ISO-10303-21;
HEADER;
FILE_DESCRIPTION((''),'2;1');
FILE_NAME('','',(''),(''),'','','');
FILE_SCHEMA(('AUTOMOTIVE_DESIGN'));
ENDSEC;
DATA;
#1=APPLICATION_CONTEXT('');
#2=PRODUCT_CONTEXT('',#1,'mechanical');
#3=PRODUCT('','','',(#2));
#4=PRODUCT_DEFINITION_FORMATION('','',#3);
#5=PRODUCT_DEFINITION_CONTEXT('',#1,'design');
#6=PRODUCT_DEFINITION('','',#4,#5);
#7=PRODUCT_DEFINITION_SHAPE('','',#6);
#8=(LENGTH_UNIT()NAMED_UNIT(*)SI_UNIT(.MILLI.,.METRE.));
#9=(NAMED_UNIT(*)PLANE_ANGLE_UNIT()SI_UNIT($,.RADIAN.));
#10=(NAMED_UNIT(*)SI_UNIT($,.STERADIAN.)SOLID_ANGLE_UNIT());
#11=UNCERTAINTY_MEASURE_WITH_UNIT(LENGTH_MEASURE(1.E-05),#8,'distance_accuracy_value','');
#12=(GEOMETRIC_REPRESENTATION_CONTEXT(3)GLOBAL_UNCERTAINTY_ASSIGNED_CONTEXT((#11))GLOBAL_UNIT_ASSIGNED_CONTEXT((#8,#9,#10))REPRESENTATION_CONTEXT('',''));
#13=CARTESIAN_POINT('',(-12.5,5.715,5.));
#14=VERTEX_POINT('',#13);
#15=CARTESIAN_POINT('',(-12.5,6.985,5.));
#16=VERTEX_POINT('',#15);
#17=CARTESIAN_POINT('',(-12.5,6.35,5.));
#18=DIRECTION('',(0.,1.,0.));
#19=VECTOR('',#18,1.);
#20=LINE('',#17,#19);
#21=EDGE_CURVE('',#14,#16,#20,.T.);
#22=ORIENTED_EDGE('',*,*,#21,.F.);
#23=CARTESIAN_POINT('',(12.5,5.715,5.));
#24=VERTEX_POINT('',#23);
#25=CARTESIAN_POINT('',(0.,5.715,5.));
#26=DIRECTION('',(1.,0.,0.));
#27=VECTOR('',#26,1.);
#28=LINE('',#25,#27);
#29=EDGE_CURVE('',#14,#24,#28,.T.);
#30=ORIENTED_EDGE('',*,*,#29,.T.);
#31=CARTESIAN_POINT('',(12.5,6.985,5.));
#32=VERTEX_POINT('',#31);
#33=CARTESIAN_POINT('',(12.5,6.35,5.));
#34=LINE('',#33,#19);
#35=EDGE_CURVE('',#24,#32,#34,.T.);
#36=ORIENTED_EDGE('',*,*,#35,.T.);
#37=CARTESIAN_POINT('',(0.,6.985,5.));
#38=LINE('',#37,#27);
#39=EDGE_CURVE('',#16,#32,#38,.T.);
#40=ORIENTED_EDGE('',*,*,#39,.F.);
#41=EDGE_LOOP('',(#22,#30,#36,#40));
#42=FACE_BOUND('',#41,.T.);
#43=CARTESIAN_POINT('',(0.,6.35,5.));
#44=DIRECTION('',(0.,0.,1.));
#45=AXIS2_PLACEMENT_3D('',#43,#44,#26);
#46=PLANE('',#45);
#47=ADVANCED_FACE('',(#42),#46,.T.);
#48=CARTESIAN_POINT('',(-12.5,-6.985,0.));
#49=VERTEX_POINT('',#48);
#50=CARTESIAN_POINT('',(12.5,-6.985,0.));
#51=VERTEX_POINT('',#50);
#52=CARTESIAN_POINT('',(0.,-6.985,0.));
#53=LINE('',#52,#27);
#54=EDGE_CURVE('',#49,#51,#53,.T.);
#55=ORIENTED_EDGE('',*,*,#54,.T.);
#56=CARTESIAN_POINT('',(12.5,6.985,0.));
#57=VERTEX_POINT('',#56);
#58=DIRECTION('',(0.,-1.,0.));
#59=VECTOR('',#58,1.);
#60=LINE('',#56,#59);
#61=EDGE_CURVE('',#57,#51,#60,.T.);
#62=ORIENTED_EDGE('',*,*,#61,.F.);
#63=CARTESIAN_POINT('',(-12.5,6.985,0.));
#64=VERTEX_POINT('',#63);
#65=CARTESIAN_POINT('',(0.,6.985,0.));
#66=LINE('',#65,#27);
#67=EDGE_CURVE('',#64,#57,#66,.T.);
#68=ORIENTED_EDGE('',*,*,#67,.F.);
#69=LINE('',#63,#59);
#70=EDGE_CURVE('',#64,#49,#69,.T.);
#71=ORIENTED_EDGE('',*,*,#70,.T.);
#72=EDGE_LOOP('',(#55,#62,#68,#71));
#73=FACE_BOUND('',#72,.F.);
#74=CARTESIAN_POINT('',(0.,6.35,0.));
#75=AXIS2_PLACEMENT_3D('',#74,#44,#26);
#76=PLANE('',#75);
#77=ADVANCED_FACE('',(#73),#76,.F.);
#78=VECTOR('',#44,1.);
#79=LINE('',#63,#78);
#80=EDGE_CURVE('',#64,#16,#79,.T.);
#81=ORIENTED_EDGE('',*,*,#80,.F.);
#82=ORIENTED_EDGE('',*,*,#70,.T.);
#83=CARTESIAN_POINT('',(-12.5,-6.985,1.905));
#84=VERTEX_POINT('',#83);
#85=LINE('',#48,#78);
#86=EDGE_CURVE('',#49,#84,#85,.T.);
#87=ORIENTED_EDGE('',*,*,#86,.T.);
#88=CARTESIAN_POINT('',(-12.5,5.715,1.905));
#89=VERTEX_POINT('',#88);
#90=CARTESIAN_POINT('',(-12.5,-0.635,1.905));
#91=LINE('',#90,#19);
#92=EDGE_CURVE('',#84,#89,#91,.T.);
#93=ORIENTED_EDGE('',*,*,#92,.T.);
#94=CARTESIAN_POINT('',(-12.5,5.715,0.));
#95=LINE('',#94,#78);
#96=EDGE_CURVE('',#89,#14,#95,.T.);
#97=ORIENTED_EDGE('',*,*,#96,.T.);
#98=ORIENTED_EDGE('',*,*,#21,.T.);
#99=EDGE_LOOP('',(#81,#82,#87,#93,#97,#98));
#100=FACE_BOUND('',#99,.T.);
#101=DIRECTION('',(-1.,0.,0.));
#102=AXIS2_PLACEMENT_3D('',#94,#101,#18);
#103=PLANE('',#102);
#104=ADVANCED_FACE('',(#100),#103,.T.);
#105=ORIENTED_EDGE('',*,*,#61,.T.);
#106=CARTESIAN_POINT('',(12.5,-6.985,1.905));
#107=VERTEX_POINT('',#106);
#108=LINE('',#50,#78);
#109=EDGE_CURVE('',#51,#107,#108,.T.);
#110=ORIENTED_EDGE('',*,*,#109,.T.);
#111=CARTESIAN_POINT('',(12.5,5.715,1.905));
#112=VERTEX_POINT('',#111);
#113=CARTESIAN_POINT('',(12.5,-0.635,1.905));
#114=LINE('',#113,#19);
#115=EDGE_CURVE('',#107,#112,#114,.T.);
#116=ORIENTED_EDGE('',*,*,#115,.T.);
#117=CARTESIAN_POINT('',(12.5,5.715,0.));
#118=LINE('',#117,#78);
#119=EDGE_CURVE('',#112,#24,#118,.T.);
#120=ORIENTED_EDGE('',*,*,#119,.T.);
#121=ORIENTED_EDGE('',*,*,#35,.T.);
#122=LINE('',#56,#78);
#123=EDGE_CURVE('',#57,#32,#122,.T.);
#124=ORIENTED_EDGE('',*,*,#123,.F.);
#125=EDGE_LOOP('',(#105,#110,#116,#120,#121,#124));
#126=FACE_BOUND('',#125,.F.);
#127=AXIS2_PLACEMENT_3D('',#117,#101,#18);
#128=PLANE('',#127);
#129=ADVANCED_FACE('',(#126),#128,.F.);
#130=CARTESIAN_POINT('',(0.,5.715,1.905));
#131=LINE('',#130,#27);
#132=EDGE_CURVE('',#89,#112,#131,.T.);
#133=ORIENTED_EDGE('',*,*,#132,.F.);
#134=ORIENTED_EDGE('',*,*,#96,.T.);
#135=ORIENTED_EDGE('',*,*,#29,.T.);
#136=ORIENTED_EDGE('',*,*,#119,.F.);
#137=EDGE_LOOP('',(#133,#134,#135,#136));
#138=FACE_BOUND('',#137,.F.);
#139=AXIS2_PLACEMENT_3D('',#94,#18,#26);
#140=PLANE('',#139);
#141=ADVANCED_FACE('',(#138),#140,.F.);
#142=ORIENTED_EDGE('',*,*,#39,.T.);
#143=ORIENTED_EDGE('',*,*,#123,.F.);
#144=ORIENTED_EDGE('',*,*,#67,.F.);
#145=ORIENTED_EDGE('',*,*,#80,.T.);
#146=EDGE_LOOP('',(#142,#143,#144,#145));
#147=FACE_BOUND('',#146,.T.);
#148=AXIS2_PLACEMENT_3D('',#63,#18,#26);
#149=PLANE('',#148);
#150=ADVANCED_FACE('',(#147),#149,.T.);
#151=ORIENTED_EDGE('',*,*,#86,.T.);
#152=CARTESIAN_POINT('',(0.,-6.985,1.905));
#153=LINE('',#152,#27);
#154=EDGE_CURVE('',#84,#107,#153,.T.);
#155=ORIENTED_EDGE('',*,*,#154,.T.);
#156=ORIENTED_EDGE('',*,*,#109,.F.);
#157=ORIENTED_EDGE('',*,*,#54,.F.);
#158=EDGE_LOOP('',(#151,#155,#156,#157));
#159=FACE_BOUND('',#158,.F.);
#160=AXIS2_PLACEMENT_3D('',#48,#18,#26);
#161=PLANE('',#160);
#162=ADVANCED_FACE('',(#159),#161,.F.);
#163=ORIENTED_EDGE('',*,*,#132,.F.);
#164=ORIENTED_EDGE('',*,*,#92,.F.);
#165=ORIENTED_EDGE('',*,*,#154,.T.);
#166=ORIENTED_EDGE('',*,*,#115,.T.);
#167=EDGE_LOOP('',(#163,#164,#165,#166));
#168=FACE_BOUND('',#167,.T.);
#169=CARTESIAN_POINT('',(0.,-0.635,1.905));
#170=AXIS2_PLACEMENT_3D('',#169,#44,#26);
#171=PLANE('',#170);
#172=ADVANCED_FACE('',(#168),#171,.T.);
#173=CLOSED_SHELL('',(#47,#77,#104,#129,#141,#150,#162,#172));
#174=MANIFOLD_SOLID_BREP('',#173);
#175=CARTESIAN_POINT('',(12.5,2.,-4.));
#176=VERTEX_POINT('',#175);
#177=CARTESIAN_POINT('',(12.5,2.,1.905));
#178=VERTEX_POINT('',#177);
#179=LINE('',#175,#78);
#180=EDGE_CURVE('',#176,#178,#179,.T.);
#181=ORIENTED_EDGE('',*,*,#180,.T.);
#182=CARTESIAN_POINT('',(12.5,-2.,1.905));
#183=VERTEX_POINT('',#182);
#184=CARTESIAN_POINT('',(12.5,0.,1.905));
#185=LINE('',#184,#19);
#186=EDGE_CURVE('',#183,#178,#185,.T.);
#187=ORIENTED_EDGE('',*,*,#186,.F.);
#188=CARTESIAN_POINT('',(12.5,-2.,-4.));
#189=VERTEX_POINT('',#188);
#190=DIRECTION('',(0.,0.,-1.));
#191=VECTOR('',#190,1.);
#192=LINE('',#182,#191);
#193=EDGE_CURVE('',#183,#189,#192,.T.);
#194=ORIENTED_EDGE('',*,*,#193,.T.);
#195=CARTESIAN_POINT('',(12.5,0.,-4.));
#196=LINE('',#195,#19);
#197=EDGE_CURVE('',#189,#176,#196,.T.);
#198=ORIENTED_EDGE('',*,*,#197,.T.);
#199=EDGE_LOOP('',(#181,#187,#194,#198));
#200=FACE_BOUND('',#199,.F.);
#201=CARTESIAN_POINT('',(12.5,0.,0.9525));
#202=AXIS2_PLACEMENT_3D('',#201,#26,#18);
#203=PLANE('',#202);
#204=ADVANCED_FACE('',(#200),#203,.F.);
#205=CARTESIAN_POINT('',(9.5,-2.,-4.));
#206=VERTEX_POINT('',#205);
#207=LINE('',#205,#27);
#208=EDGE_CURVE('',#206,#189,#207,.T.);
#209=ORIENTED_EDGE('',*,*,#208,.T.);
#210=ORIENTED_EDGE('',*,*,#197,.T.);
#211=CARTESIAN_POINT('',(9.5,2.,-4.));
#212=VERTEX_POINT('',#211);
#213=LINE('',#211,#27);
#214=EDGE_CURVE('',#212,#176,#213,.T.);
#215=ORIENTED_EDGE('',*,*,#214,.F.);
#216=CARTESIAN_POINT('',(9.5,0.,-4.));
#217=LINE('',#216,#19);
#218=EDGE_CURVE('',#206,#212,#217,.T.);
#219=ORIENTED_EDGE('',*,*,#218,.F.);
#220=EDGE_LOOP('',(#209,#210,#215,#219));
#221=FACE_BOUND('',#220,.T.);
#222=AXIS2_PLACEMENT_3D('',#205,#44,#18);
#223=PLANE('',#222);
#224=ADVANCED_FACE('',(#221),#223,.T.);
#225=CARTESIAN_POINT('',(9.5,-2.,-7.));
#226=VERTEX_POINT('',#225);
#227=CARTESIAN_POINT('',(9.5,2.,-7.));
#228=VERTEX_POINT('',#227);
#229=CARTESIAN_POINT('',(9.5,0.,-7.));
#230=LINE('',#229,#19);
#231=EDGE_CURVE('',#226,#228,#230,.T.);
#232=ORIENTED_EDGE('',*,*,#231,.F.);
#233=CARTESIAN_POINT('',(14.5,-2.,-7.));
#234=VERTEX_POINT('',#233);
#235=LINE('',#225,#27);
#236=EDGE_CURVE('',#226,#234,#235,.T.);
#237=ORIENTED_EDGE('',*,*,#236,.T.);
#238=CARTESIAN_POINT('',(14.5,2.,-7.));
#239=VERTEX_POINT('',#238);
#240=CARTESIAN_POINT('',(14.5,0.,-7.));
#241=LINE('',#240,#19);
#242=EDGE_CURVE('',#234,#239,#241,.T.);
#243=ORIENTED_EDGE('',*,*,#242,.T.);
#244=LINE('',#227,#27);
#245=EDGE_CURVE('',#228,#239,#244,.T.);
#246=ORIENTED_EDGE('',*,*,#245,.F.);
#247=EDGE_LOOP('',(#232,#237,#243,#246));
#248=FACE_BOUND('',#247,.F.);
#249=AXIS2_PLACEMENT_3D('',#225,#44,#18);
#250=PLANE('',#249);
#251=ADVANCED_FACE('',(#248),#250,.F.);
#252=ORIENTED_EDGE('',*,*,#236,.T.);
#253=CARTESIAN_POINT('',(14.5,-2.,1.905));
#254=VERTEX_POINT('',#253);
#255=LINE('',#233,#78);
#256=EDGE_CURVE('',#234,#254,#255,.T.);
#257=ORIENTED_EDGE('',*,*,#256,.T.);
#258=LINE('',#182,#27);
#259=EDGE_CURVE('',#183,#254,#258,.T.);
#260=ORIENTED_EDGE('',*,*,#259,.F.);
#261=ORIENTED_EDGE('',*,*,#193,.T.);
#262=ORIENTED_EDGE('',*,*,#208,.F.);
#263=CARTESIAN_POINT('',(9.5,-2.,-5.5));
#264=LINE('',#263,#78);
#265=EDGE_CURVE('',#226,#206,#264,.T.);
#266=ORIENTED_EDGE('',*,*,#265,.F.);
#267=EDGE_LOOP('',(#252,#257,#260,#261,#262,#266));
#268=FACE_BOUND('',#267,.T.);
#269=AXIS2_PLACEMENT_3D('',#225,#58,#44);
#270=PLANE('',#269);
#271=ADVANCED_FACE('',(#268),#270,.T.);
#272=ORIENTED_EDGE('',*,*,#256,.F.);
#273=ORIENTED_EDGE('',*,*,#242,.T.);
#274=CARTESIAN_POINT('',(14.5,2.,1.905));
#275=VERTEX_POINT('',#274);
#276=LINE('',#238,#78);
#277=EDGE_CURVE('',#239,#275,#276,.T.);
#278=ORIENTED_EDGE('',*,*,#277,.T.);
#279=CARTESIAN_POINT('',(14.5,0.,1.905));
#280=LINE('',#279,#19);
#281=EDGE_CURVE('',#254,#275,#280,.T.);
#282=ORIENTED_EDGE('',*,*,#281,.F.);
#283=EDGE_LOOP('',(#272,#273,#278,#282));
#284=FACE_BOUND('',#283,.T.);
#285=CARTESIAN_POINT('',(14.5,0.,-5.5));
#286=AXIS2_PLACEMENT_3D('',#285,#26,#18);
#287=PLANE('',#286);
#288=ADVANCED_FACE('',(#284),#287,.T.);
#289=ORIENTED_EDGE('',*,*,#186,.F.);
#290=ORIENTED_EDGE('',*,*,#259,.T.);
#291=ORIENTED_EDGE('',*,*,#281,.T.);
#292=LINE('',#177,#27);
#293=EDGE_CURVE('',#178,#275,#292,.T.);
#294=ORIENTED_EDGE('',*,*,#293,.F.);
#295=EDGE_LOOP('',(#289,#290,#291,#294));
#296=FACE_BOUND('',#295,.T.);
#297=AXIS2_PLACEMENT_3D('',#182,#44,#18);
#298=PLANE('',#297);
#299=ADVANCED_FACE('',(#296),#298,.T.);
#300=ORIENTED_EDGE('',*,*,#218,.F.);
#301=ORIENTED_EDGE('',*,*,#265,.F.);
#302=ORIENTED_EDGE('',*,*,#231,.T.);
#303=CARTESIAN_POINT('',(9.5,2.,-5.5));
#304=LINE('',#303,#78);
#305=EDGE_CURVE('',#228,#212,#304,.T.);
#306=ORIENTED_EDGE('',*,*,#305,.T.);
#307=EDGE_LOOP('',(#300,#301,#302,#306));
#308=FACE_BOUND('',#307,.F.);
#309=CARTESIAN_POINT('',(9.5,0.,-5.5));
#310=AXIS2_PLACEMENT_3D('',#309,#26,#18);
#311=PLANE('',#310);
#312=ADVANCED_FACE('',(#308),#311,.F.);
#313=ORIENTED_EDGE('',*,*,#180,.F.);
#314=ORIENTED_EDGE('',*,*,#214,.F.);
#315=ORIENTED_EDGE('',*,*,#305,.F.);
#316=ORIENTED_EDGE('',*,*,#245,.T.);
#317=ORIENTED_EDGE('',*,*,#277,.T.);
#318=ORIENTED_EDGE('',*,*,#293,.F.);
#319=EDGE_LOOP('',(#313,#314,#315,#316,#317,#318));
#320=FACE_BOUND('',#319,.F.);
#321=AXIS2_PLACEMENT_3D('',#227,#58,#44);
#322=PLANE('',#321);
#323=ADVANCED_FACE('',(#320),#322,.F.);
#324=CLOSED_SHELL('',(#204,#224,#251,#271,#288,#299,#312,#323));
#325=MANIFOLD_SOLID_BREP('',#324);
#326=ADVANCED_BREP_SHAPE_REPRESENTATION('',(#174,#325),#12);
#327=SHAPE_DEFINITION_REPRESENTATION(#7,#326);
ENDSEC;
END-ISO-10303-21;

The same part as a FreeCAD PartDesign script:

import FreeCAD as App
import Part
import Sketcher

V = App.Vector

doc = App.newDocument("Part")
params = doc.addObject("Spreadsheet::Sheet", "Params")
for row, (alias, value) in enumerate([
    ("sketch1_width", "25 mm"),
    ("sketch1_height", "12.7 mm"),
    ("pad1_length", "1.905 mm"),
    ("sketch2_width", "25 mm"),
    ("sketch2_height", "1.27 mm"),
    ("pad2_length", "5 mm"),
    ("sketch3_width", "4 mm"),
    ("pad3_length", "2 mm"),
    ("sketch4_width", "4 mm"),
    ("sketch4_height", "3 mm"),
    ("pad4_length", "5 mm"),
], start=1):
    params.set(f"A{row}", alias)
    params.set(f"B{row}", "=" + value)
    params.setAlias(f"B{row}", alias)

body = doc.addObject("PartDesign::Body", "Body")

sketch1 = body.newObject("Sketcher::SketchObject", "Sketch")
sketch1.AttachmentSupport = (doc.getObject("XY_Plane"), [""])
sketch1.MapMode = "FlatFace"
sketch1.addGeometry(Part.LineSegment(V(-12.5, 5.715, 0), V(-12.5, -6.985, 0)), False)
sketch1.addGeometry(Part.LineSegment(V(-12.5, -6.985, 0), V(12.5, -6.985, 0)), False)
sketch1.addGeometry(Part.LineSegment(V(12.5, -6.985, 0), V(12.5, 5.715, 0)), False)
sketch1.addGeometry(Part.LineSegment(V(12.5, 5.715, 0), V(-12.5, 5.715, 0)), False)
sketch1.addConstraint(Sketcher.Constraint("Coincident", 0, 2, 1, 1))
sketch1.addConstraint(Sketcher.Constraint("Coincident", 1, 2, 2, 1))
sketch1.addConstraint(Sketcher.Constraint("Coincident", 2, 2, 3, 1))
sketch1.addConstraint(Sketcher.Constraint("Coincident", 3, 2, 0, 1))
sketch1.addConstraint(Sketcher.Constraint("Vertical", 0))
sketch1.addConstraint(Sketcher.Constraint("Horizontal", 1))
sketch1.addConstraint(Sketcher.Constraint("Vertical", 2))
sketch1.addConstraint(Sketcher.Constraint("Horizontal", 3))
sketch1.addConstraint(Sketcher.Constraint("DistanceX", 1, 1, 1, 2, 25.0))
sketch1.addConstraint(Sketcher.Constraint("DistanceY", 0, 2, 0, 1, 12.7))
sketch1.addConstraint(Sketcher.Constraint("DistanceX", 0, 2, -1, 1, 12.5))
sketch1.addConstraint(Sketcher.Constraint("DistanceY", 0, 2, -1, 1, 6.985))
sketch1.setExpression("Constraints[8]", "Params.sketch1_width")
sketch1.setExpression("Constraints[9]", "Params.sketch1_height")
pad1 = body.newObject("PartDesign::Pad", "Pad")
pad1.Profile = sketch1
pad1.setExpression("Length", "Params.pad1_length")

sketch2 = body.newObject("Sketcher::SketchObject", "Sketch001")
sketch2.AttachmentSupport = (doc.getObject("XY_Plane"), [""])
sketch2.MapMode = "FlatFace"
sketch2.addGeometry(Part.LineSegment(V(-12.5, 6.985, 0), V(-12.5, 5.715, 0)), False)
sketch2.addGeometry(Part.LineSegment(V(-12.5, 5.715, 0), V(12.5, 5.715, 0)), False)
sketch2.addGeometry(Part.LineSegment(V(12.5, 5.715, 0), V(12.5, 6.985, 0)), False)
sketch2.addGeometry(Part.LineSegment(V(12.5, 6.985, 0), V(-12.5, 6.985, 0)), False)
sketch2.addConstraint(Sketcher.Constraint("Coincident", 0, 2, 1, 1))
sketch2.addConstraint(Sketcher.Constraint("Coincident", 1, 2, 2, 1))
sketch2.addConstraint(Sketcher.Constraint("Coincident", 2, 2, 3, 1))
sketch2.addConstraint(Sketcher.Constraint("Coincident", 3, 2, 0, 1))
sketch2.addConstraint(Sketcher.Constraint("Vertical", 0))
sketch2.addConstraint(Sketcher.Constraint("Horizontal", 1))
sketch2.addConstraint(Sketcher.Constraint("Vertical", 2))
sketch2.addConstraint(Sketcher.Constraint("Horizontal", 3))
sketch2.addConstraint(Sketcher.Constraint("DistanceX", 1, 1, 1, 2, 25.0))
sketch2.addConstraint(Sketcher.Constraint("DistanceY", 0, 2, 0, 1, 1.27))
sketch2.addConstraint(Sketcher.Constraint("DistanceX", 0, 2, -1, 1, 12.5))
sketch2.addConstraint(Sketcher.Constraint("DistanceY", -1, 1, 0, 2, 5.715))
sketch2.setExpression("Constraints[8]", "Params.sketch2_width")
sketch2.setExpression("Constraints[9]", "Params.sketch2_height")
pad2 = body.newObject("PartDesign::Pad", "Pad001")
pad2.Profile = sketch2
pad2.setExpression("Length", "Params.pad2_length")
body2 = doc.addObject("PartDesign::Body", "Body001")

sketch3 = body2.newObject("Sketcher::SketchObject", "Sketch002")
sketch3.AttachmentSupport = (doc.getObject("YZ_Plane001"), [""])
sketch3.MapMode = "FlatFace"
sketch3.AttachmentOffset = App.Placement(V(0, 0, 12.5), App.Rotation())
sketch3.addGeometry(Part.LineSegment(V(-2, 1.905, 0), V(-2, -4, 0)), False)
sketch3.addGeometry(Part.LineSegment(V(-2, -4, 0), V(2, -4, 0)), False)
sketch3.addGeometry(Part.LineSegment(V(2, -4, 0), V(2, 1.905, 0)), False)
sketch3.addGeometry(Part.LineSegment(V(2, 1.905, 0), V(-2, 1.905, 0)), False)
sketch3.addConstraint(Sketcher.Constraint("Coincident", 0, 2, 1, 1))
sketch3.addConstraint(Sketcher.Constraint("Coincident", 1, 2, 2, 1))
sketch3.addConstraint(Sketcher.Constraint("Coincident", 2, 2, 3, 1))
sketch3.addConstraint(Sketcher.Constraint("Coincident", 3, 2, 0, 1))
sketch3.addConstraint(Sketcher.Constraint("Vertical", 0))
sketch3.addConstraint(Sketcher.Constraint("Horizontal", 1))
sketch3.addConstraint(Sketcher.Constraint("Vertical", 2))
sketch3.addConstraint(Sketcher.Constraint("Horizontal", 3))
sketch3.addConstraint(Sketcher.Constraint("DistanceX", 1, 1, 1, 2, 4.0))
sketch3.addConstraint(Sketcher.Constraint("DistanceX", 0, 2, -1, 1, 2.0))
sketch3.addConstraint(Sketcher.Constraint("DistanceY", 0, 2, -1, 1, 4.0))
sketch3.addConstraint(Sketcher.Constraint("DistanceY", 0, 2, 0, 1, 5.905))
sketch3.setExpression("Constraints[8]", "Params.sketch3_width")
pad3 = body2.newObject("PartDesign::Pad", "Pad002")
pad3.Profile = sketch3
pad3.setExpression("Length", "Params.pad3_length")

sketch4 = body2.newObject("Sketcher::SketchObject", "Sketch003")
sketch4.AttachmentSupport = (doc.getObject("YZ_Plane001"), [""])
sketch4.MapMode = "FlatFace"
sketch4.AttachmentOffset = App.Placement(V(0, 0, 9.5), App.Rotation())
sketch4.addGeometry(Part.LineSegment(V(-2, -4, 0), V(-2, -7, 0)), False)
sketch4.addGeometry(Part.LineSegment(V(-2, -7, 0), V(2, -7, 0)), False)
sketch4.addGeometry(Part.LineSegment(V(2, -7, 0), V(2, -4, 0)), False)
sketch4.addGeometry(Part.LineSegment(V(2, -4, 0), V(-2, -4, 0)), False)
sketch4.addConstraint(Sketcher.Constraint("Coincident", 0, 2, 1, 1))
sketch4.addConstraint(Sketcher.Constraint("Coincident", 1, 2, 2, 1))
sketch4.addConstraint(Sketcher.Constraint("Coincident", 2, 2, 3, 1))
sketch4.addConstraint(Sketcher.Constraint("Coincident", 3, 2, 0, 1))
sketch4.addConstraint(Sketcher.Constraint("Vertical", 0))
sketch4.addConstraint(Sketcher.Constraint("Horizontal", 1))
sketch4.addConstraint(Sketcher.Constraint("Vertical", 2))
sketch4.addConstraint(Sketcher.Constraint("Horizontal", 3))
sketch4.addConstraint(Sketcher.Constraint("DistanceX", 1, 1, 1, 2, 4.0))
sketch4.addConstraint(Sketcher.Constraint("DistanceY", 0, 2, 0, 1, 3.0))
sketch4.addConstraint(Sketcher.Constraint("DistanceX", 0, 2, -1, 1, 2.0))
sketch4.addConstraint(Sketcher.Constraint("DistanceY", 0, 2, -1, 1, 7.0))
sketch4.setExpression("Constraints[8]", "Params.sketch4_width")
sketch4.setExpression("Constraints[9]", "Params.sketch4_height")
pad4 = body2.newObject("PartDesign::Pad", "Pad003")
pad4.Profile = sketch4
pad4.setExpression("Length", "Params.pad4_length")

doc.recompute()
